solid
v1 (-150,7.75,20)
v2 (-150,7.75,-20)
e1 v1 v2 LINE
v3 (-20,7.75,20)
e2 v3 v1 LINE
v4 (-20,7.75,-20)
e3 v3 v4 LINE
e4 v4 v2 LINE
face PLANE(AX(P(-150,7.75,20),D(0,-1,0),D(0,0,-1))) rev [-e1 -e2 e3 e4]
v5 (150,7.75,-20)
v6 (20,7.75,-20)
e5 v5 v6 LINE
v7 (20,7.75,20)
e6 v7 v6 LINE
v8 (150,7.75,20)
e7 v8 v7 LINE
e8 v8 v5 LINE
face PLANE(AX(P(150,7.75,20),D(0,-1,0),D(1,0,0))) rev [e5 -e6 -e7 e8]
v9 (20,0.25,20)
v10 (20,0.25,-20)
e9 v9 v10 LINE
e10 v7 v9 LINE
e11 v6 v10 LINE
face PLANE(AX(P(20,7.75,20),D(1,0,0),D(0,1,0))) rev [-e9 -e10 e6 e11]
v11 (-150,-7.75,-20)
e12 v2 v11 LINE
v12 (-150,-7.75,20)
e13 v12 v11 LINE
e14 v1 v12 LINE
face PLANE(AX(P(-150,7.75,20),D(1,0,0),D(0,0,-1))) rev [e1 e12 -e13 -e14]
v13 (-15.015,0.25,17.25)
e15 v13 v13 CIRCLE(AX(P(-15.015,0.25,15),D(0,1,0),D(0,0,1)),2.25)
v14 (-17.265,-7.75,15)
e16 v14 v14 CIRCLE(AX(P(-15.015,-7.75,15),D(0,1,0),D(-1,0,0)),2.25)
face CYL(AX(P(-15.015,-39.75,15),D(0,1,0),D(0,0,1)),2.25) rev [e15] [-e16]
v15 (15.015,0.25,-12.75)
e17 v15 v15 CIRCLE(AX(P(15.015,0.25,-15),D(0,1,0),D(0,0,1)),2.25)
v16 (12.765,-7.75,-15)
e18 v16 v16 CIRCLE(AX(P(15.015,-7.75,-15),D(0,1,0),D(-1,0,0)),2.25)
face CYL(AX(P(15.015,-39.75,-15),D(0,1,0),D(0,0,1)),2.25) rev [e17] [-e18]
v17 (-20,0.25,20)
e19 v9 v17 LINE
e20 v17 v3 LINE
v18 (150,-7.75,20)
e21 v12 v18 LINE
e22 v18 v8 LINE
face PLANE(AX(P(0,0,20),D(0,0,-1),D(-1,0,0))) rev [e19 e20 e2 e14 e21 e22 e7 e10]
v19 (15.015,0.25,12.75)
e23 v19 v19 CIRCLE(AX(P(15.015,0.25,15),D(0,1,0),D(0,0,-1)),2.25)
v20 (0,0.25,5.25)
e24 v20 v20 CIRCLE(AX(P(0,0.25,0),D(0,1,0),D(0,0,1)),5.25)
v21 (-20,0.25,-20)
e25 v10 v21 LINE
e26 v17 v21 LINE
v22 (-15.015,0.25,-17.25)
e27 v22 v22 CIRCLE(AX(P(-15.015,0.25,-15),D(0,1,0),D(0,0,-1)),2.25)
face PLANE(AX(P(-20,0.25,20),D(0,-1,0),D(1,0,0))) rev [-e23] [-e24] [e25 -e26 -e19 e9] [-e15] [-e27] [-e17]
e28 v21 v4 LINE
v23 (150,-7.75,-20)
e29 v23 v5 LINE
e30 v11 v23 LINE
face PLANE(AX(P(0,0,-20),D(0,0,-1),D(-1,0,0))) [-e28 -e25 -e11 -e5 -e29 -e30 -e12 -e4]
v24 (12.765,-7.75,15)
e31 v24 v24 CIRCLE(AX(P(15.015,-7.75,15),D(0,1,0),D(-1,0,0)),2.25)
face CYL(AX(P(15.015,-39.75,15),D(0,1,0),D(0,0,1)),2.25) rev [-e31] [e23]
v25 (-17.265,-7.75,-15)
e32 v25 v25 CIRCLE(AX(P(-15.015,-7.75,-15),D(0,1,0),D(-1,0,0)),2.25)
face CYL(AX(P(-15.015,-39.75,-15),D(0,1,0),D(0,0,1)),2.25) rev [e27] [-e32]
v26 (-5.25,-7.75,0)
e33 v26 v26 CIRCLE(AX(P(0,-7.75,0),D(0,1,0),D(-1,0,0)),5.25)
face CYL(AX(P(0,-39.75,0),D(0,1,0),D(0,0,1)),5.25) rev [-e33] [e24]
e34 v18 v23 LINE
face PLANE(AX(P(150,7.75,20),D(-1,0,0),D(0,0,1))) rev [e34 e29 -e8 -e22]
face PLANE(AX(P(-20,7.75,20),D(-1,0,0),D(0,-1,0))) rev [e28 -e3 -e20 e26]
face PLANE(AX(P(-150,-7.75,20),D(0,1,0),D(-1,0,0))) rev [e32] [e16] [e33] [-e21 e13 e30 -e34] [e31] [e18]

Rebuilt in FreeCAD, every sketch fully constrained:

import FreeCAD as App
import Part
import Sketcher
from FreeCAD import Vector


def add_polygon(sketch, points):
    """Adds a closed chain of lines whose ends are joined by coincident constraints."""
    first, n = sketch.GeometryCount, len(points)
    for a, b in zip(points, points[1:] + points[:1]):
        sketch.addGeometry(Part.LineSegment(App.Vector(*a, 0), App.Vector(*b, 0)), False)
    for i in range(n):
        sketch.addConstraint(Sketcher.Constraint("Coincident", first + i, 2, first + (i + 1) % n, 1))

doc = App.newDocument("Part")
body = doc.addObject("PartDesign::Body", "Body")

# Sketch on XY plane
sketch1 = doc.addObject("Sketcher::SketchObject", "Sketch")
body.addObject(sketch1)
sketch1.AttachmentSupport = (doc.XY_Plane, [""])
sketch1.MapMode = "FlatFace"
add_polygon(sketch1, [(-150, 7.75), (-150, -7.75), (150, -7.75), (150, 7.75), (20, 7.75), (20, 0.25), (-20, 0.25), (-20, 7.75)])  # lines 0-7
sketch1.addConstraint(Sketcher.Constraint("Vertical", 0))
sketch1.addConstraint(Sketcher.Constraint("Horizontal", 1))
sketch1.addConstraint(Sketcher.Constraint("Vertical", 2))
sketch1.addConstraint(Sketcher.Constraint("Horizontal", 3))
sketch1.addConstraint(Sketcher.Constraint("Vertical", 4))
sketch1.addConstraint(Sketcher.Constraint("Horizontal", 5))
sketch1.addConstraint(Sketcher.Constraint("Vertical", 6))
sketch1.addConstraint(Sketcher.Constraint("Horizontal", 7))
sketch1.addConstraint(Sketcher.Constraint("Symmetric", 0, 2, 2, 2, -1, 1))
sketch1.addConstraint(Sketcher.Constraint("Symmetric", 3, 2, 6, 2, -2))
sketch1.addConstraint(Sketcher.Constraint("DistanceX", 1, 1, 1, 2, 300.0))
sketch1.addConstraint(Sketcher.Constraint("DistanceX", 3, 2, 3, 1, 130.0))
sketch1.addConstraint(Sketcher.Constraint("DistanceY", 0, 2, 0, 1, 15.5))
sketch1.addConstraint(Sketcher.Constraint("DistanceY", 4, 2, 4, 1, 7.5))
pad1 = doc.addObject("PartDesign::Pad", "Pad")
body.addObject(pad1)
pad1.Profile = sketch1
pad1.Length = 40
pad1.Midplane = True

# Sketch on XZ plane
sketch2 = doc.addObject("Sketcher::SketchObject", "Sketch001")
body.addObject(sketch2)
sketch2.AttachmentSupport = (doc.XZ_Plane, [""])
sketch2.MapMode = "FlatFace"
sketch2.AttachmentOffset = App.Placement(Vector(0, 0, -0.25), App.Rotation())
sketch2.addGeometry(Part.Circle(Vector(15.015, -15, 0), Vector(0, 0, 1), 2.25), False)
sketch2.addGeometry(Part.Circle(Vector(-15.015, -15, 0), Vector(0, 0, 1), 2.25), False)
sketch2.addGeometry(Part.Circle(Vector(15.015, 15, 0), Vector(0, 0, 1), 2.25), False)
sketch2.addGeometry(Part.Circle(Vector(-15.015, 15, 0), Vector(0, 0, 1), 2.25), False)
sketch2.addGeometry(Part.Circle(Vector(0, 0, 0), Vector(0, 0, 1), 5.25), False)
sketch2.addConstraint(Sketcher.Constraint("Coincident", 4, 3, -1, 1))
sketch2.addConstraint(Sketcher.Constraint("Equal", 0, 1))
sketch2.addConstraint(Sketcher.Constraint("Equal", 1, 2))
sketch2.addConstraint(Sketcher.Constraint("Equal", 2, 3))
sketch2.addConstraint(Sketcher.Constraint("Symmetric", 1, 3, 2, 3, -1, 1))
sketch2.addConstraint(Sketcher.Constraint("Symmetric", 0, 3, 3, 3, -1, 1))
sketch2.addConstraint(Sketcher.Constraint("Symmetric", 0, 3, 1, 3, -2))
sketch2.addConstraint(Sketcher.Constraint("Diameter", 0, 4.5))
sketch2.addConstraint(Sketcher.Constraint("Diameter", 4, 10.5))
sketch2.addConstraint(Sketcher.Constraint("DistanceY", 0, 3, -1, 1, 15.0))
sketch2.addConstraint(Sketcher.Constraint("DistanceX", 1, 3, 0, 3, 30.03))
pocket1 = doc.addObject("PartDesign::Pocket", "Pocket")
body.addObject(pocket1)
pocket1.Profile = sketch2
pocket1.Length = 40
pocket1.Reversed = True

doc.recompute()
